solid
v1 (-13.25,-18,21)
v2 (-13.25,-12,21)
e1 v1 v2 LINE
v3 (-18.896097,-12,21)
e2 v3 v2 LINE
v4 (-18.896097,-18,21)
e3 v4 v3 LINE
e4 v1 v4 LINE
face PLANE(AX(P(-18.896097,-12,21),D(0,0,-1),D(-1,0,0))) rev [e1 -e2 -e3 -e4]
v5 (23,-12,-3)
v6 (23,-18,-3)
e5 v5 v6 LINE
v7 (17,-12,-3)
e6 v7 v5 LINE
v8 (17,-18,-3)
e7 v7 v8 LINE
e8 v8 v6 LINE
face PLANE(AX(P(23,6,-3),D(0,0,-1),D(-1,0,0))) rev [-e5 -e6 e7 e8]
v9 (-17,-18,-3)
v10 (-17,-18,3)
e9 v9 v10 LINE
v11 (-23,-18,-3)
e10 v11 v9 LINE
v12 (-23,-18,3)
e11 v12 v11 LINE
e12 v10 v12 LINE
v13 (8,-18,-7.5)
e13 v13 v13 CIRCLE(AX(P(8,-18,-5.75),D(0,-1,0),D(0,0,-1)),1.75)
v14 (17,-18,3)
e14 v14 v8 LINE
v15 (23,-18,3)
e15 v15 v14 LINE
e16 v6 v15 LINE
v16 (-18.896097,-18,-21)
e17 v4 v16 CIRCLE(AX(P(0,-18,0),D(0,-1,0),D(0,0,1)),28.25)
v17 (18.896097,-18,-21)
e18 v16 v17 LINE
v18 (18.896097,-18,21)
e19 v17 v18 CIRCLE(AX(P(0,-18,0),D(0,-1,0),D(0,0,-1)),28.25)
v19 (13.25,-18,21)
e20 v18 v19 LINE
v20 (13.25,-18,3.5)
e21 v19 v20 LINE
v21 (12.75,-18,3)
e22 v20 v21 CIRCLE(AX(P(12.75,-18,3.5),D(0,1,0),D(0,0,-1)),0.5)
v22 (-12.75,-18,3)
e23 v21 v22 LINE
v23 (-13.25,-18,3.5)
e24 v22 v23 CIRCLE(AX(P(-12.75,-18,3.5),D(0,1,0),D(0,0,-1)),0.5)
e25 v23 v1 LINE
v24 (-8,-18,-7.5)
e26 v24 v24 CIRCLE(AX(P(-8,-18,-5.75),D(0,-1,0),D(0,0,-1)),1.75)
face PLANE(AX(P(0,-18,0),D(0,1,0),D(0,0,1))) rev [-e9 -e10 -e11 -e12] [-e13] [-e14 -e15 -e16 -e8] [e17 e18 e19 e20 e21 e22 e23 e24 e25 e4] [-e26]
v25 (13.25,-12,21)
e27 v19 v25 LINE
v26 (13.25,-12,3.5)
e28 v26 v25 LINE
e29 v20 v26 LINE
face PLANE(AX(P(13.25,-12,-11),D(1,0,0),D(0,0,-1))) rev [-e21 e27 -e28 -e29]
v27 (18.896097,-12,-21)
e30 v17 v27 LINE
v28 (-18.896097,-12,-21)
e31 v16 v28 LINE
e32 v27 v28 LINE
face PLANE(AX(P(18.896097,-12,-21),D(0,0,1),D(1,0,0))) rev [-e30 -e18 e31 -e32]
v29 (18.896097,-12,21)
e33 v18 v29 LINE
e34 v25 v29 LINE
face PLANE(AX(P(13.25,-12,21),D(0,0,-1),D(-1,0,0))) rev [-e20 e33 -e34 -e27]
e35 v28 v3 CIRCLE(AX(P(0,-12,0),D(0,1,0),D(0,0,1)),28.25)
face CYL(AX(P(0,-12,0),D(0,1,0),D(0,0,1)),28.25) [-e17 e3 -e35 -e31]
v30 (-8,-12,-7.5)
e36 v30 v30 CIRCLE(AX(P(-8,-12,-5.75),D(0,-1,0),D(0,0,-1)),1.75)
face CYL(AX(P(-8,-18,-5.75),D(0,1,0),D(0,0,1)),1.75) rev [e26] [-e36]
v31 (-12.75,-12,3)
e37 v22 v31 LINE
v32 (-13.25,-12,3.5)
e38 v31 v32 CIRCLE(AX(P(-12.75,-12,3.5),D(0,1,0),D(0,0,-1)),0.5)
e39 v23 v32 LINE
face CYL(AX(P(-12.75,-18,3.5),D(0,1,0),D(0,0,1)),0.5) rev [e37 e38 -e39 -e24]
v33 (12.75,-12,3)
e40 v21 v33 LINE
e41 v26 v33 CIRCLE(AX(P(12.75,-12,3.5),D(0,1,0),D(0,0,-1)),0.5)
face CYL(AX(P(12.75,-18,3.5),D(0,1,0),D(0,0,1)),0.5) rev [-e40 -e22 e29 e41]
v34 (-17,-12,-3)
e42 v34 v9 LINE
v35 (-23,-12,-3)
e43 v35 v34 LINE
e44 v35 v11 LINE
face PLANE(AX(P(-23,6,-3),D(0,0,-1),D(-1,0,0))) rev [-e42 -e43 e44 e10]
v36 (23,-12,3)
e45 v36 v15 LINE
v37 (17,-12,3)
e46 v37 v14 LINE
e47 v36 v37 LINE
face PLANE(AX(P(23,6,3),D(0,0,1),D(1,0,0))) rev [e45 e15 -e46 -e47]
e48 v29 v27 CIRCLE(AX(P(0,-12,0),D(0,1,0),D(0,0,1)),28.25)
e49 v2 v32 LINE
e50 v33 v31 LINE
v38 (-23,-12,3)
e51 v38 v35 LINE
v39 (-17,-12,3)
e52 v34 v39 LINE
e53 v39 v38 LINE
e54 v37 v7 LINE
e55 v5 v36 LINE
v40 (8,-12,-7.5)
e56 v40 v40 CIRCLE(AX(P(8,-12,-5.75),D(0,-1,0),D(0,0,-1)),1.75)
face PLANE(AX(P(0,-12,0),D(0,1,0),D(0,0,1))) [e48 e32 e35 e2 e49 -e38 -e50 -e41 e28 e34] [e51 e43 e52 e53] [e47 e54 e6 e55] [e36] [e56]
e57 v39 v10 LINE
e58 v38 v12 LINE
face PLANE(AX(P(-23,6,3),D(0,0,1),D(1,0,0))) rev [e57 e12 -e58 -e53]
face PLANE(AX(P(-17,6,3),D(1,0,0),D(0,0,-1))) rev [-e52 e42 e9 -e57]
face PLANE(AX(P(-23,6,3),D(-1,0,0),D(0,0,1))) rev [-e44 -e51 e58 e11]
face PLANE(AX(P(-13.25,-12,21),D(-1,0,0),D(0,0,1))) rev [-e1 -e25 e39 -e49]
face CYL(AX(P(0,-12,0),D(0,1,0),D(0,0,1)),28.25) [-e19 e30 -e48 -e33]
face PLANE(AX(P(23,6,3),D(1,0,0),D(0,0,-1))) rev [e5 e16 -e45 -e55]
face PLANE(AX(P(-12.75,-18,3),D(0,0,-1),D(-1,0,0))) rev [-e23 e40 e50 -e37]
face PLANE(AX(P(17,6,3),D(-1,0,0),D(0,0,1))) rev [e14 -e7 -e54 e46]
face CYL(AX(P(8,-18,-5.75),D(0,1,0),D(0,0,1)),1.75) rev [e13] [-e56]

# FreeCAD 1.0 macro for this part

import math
import FreeCAD as App
import Part
import Sketcher


def add_polygon(sketch, points):
    """Adds a closed chain of lines whose ends are joined by coincident constraints."""
    first, n = sketch.GeometryCount, len(points)
    for a, b in zip(points, points[1:] + points[:1]):
        sketch.addGeometry(Part.LineSegment(App.Vector(*a, 0), App.Vector(*b, 0)), False)
    for i in range(n):
        sketch.addConstraint(Sketcher.Constraint("Coincident", first + i, 2, first + (i + 1) % n, 1))

doc = App.newDocument("Part")
body = doc.addObject("PartDesign::Body", "Body")

# Sketch on XZ plane
sketch1 = body.newObject("Sketcher::SketchObject", "Sketch")
sketch1.AttachmentSupport = (doc.getObject("XZ_Plane"), [""])
sketch1.MapMode = "FlatFace"
sketch1.addGeometry(Part.LineSegment(App.Vector(-161, -104, 0), App.Vector(-39, -10, 0)), False)
sketch1.addGeometry(Part.ArcOfCircle(Part.Circle(App.Vector(0, 0, 0), App.Vector(0, 0, 1), 40), math.radians(166), math.radians(194)), False)
sketch1.addGeometry(Part.LineSegment(App.Vector(-39, 10, 0), App.Vector(-161, 104, 0)), False)
sketch1.addGeometry(Part.LineSegment(App.Vector(-161, 104, 0), App.Vector(-161, 124, 0)), False)
sketch1.addGeometry(Part.LineSegment(App.Vector(-161, 124, 0), App.Vector(-141, 124, 0)), False)
sketch1.addGeometry(Part.LineSegment(App.Vector(-141, 124, 0), App.Vector(-23, 33, 0)), False)
sketch1.addGeometry(Part.ArcOfCircle(Part.Circle(App.Vector(0, 0, 0), App.Vector(0, 0, 1), 40), math.radians(55), math.radians(125)), False)
sketch1.addGeometry(Part.LineSegment(App.Vector(23, 33, 0), App.Vector(141, 124, 0)), False)
sketch1.addGeometry(Part.LineSegment(App.Vector(141, 124, 0), App.Vector(161, 124, 0)), False)
sketch1.addGeometry(Part.LineSegment(App.Vector(161, 124, 0), App.Vector(161, 104, 0)), False)
sketch1.addGeometry(Part.LineSegment(App.Vector(161, 104, 0), App.Vector(39, 10, 0)), False)
sketch1.addGeometry(Part.ArcOfCircle(Part.Circle(App.Vector(0, 0, 0), App.Vector(0, 0, 1), 40), math.radians(-14), math.radians(14)), False)
sketch1.addGeometry(Part.LineSegment(App.Vector(39, -10, 0), App.Vector(161, -104, 0)), False)
sketch1.addGeometry(Part.LineSegment(App.Vector(161, -104, 0), App.Vector(161, -124, 0)), False)
sketch1.addGeometry(Part.LineSegment(App.Vector(161, -124, 0), App.Vector(141, -124, 0)), False)
sketch1.addGeometry(Part.LineSegment(App.Vector(141, -124, 0), App.Vector(23, -33, 0)), False)
sketch1.addGeometry(Part.ArcOfCircle(Part.Circle(App.Vector(0, 0, 0), App.Vector(0, 0, 1), 40), math.radians(-125), math.radians(-55)), False)
sketch1.addGeometry(Part.LineSegment(App.Vector(-23, -33, 0), App.Vector(-141, -124, 0)), False)
sketch1.addGeometry(Part.LineSegment(App.Vector(-141, -124, 0), App.Vector(-161, -124, 0)), False)
sketch1.addGeometry(Part.LineSegment(App.Vector(-161, -124, 0), App.Vector(-161, -104, 0)), False)
sketch1.addConstraint(Sketcher.Constraint("Coincident", 0, 2, 1, 2))
sketch1.addConstraint(Sketcher.Constraint("Coincident", 1, 1, 2, 1))
sketch1.addConstraint(Sketcher.Constraint("Coincident", 2, 2, 3, 1))
sketch1.addConstraint(Sketcher.Constraint("Coincident", 3, 2, 4, 1))
sketch1.addConstraint(Sketcher.Constraint("Coincident", 4, 2, 5, 1))
sketch1.addConstraint(Sketcher.Constraint("Coincident", 5, 2, 6, 2))
sketch1.addConstraint(Sketcher.Constraint("Coincident", 6, 1, 7, 1))
sketch1.addConstraint(Sketcher.Constraint("Coincident", 7, 2, 8, 1))
sketch1.addConstraint(Sketcher.Constraint("Coincident", 8, 2, 9, 1))
sketch1.addConstraint(Sketcher.Constraint("Coincident", 9, 2, 10, 1))
sketch1.addConstraint(Sketcher.Constraint("Coincident", 10, 2, 11, 2))
sketch1.addConstraint(Sketcher.Constraint("Coincident", 11, 1, 12, 1))
sketch1.addConstraint(Sketcher.Constraint("Coincident", 12, 2, 13, 1))
sketch1.addConstraint(Sketcher.Constraint("Coincident", 13, 2, 14, 1))
sketch1.addConstraint(Sketcher.Constraint("Coincident", 14, 2, 15, 1))
sketch1.addConstraint(Sketcher.Constraint("Coincident", 15, 2, 16, 2))
sketch1.addConstraint(Sketcher.Constraint("Coincident", 16, 1, 17, 1))
sketch1.addConstraint(Sketcher.Constraint("Coincident", 17, 2, 18, 1))
sketch1.addConstraint(Sketcher.Constraint("Coincident", 18, 2, 19, 1))
sketch1.addConstraint(Sketcher.Constraint("Coincident", 19, 2, 0, 1))
sketch1.addConstraint(Sketcher.Constraint("Vertical", 3))
sketch1.addConstraint(Sketcher.Constraint("Horizontal", 4))
sketch1.addConstraint(Sketcher.Constraint("Horizontal", 8))
sketch1.addConstraint(Sketcher.Constraint("Vertical", 9))
sketch1.addConstraint(Sketcher.Constraint("Vertical", 13))
sketch1.addConstraint(Sketcher.Constraint("Horizontal", 14))
sketch1.addConstraint(Sketcher.Constraint("Horizontal", 18))
sketch1.addConstraint(Sketcher.Constraint("Vertical", 19))
sketch1.addConstraint(Sketcher.Constraint("Coincident", 1, 3, -1, 1))
sketch1.addConstraint(Sketcher.Constraint("Coincident", 6, 3, -1, 1))
sketch1.addConstraint(Sketcher.Constraint("Coincident", 11, 3, -1, 1))
sketch1.addConstraint(Sketcher.Constraint("Coincident", 16, 3, -1, 1))
sketch1.addConstraint(Sketcher.Constraint("Equal", 1, 6))
sketch1.addConstraint(Sketcher.Constraint("Equal", 6, 11))
sketch1.addConstraint(Sketcher.Constraint("Equal", 11, 16))
sketch1.addConstraint(Sketcher.Constraint("Symmetric", 2, 2, 12, 2, -1, 1))
sketch1.addConstraint(Sketcher.Constraint("Symmetric", 4, 2, 14, 2, -1, 1))
sketch1.addConstraint(Sketcher.Constraint("Symmetric", 7, 2, 17, 2, -1, 1))
sketch1.addConstraint(Sketcher.Constraint("Symmetric", 9, 2, 19, 2, -1, 1))
sketch1.addConstraint(Sketcher.Constraint("Symmetric", 4, 2, 7, 2, -2))
sketch1.addConstraint(Sketcher.Constraint("Symmetric", 2, 2, 9, 2, -2))
sketch1.addConstraint(Sketcher.Constraint("Parallel", 2, 5))
sketch1.addConstraint(Sketcher.Constraint("Parallel", 0, 7))
sketch1.addConstraint(Sketcher.Constraint("Parallel", 7, 10))
sketch1.addConstraint(Sketcher.Constraint("Parallel", 5, 12))
sketch1.addConstraint(Sketcher.Constraint("Parallel", 12, 15))
sketch1.addConstraint(Sketcher.Constraint("Parallel", 10, 17))
sketch1.addConstraint(Sketcher.Constraint("Horizontal", 5, 2, 6, 1))
sketch1.addConstraint(Sketcher.Constraint("Equal", 18, 3))
sketch1.addConstraint(Sketcher.Constraint("Radius", 1, 40.0))
sketch1.addConstraint(Sketcher.Constraint("DistanceX", 4, 1, 4, 2, 20.0))
sketch1.addConstraint(Sketcher.Constraint("DistanceX", 2, 2, -1, 1, 161.0))
sketch1.addConstraint(Sketcher.Constraint("DistanceY", -1, 1, 2, 2, 103.5))
sketch1.addConstraint(Sketcher.Constraint("Distance", 5, 148.940169))
pad1 = body.newObject("PartDesign::Pad", "Pad")
pad1.Profile = sketch1
pad1.Length = 6
pad1.Reversed = True

# Sketch on XZ plane
sketch2 = body.newObject("Sketcher::SketchObject", "Sketch001")
sketch2.AttachmentSupport = (doc.getObject("XZ_Plane"), [""])
sketch2.MapMode = "FlatFace"
sketch2.addGeometry(Part.Circle(App.Vector(0, 0, 0), App.Vector(0, 0, 1), 40), False)
sketch2.addConstraint(Sketcher.Constraint("Coincident", 0, 3, -1, 1))
sketch2.addConstraint(Sketcher.Constraint("Diameter", 0, 80.0))
pad2 = body.newObject("PartDesign::Pad", "Pad001")
pad2.Profile = sketch2
pad2.Length = 6

# Sketch on XZ plane
sketch3 = body.newObject("Sketcher::SketchObject", "Sketch002")
sketch3.AttachmentSupport = (doc.getObject("XZ_Plane"), [""])
sketch3.MapMode = "FlatFace"
sketch3.AttachmentOffset = App.Placement(App.Vector(0, 0, 6), App.Rotation())
sketch3.addGeometry(Part.LineSegment(App.Vector(-19, -21, 0), App.Vector(19, -21, 0)), False)
sketch3.addGeometry(Part.ArcOfCircle(Part.Circle(App.Vector(0, 0, 0), App.Vector(0, 0, 1), 28), math.radians(-48), math.radians(48)), False)
sketch3.addGeometry(Part.LineSegment(App.Vector(19, 21, 0), App.Vector(13, 21, 0)), False)
sketch3.addGeometry(Part.LineSegment(App.Vector(13, 21, 0), App.Vector(13, -11, 0)), False)
sketch3.addGeometry(Part.LineSegment(App.Vector(13, -11, 0), App.Vector(-13, -11, 0)), False)
sketch3.addGeometry(Part.LineSegment(App.Vector(-13, -11, 0), App.Vector(-13, 21, 0)), False)
sketch3.addGeometry(Part.LineSegment(App.Vector(-13, 21, 0), App.Vector(-19, 21, 0)), False)
sketch3.addGeometry(Part.ArcOfCircle(Part.Circle(App.Vector(0, 0, 0), App.Vector(0, 0, 1), 28), math.radians(132), math.radians(228)), False)
sketch3.addConstraint(Sketcher.Constraint("Coincident", 0, 2, 1, 1))
sketch3.addConstraint(Sketcher.Constraint("Coincident", 1, 2, 2, 1))
sketch3.addConstraint(Sketcher.Constraint("Coincident", 2, 2, 3, 1))
sketch3.addConstraint(Sketcher.Constraint("Coincident", 3, 2, 4, 1))
sketch3.addConstraint(Sketcher.Constraint("Coincident", 4, 2, 5, 1))
sketch3.addConstraint(Sketcher.Constraint("Coincident", 5, 2, 6, 1))
sketch3.addConstraint(Sketcher.Constraint("Coincident", 6, 2, 7, 1))
sketch3.addConstraint(Sketcher.Constraint("Coincident", 7, 2, 0, 1))
sketch3.addConstraint(Sketcher.Constraint("Horizontal", 0))
sketch3.addConstraint(Sketcher.Constraint("Horizontal", 2))
sketch3.addConstraint(Sketcher.Constraint("Vertical", 3))
sketch3.addConstraint(Sketcher.Constraint("Horizontal", 4))
sketch3.addConstraint(Sketcher.Constraint("Vertical", 5))
sketch3.addConstraint(Sketcher.Constraint("Horizontal", 6))
sketch3.addConstraint(Sketcher.Constraint("Coincident", 1, 3, -1, 1))
sketch3.addConstraint(Sketcher.Constraint("Coincident", 7, 3, -1, 1))
sketch3.addConstraint(Sketcher.Constraint("Equal", 1, 7))
sketch3.addConstraint(Sketcher.Constraint("Symmetric", 2, 2, 5, 2, -2))
sketch3.addConstraint(Sketcher.Constraint("Vertical", 0, 2, 1, 2))
sketch3.addConstraint(Sketcher.Constraint("DistanceY", 3, 2, 3, 1, 32.0))
sketch3.addConstraint(Sketcher.Constraint("Radius", 1, 28.25))
sketch3.addConstraint(Sketcher.Constraint("DistanceX", 4, 2, 4, 1, 26.5))
sketch3.addConstraint(Sketcher.Constraint("DistanceY", 0, 2, -1, 1, 21.0))
pad3 = body.newObject("PartDesign::Pad", "Pad002")
pad3.Profile = sketch3
pad3.Length = 6

# Sketch on XZ plane
sketch4 = body.newObject("Sketcher::SketchObject", "Sketch003")
sketch4.AttachmentSupport = (doc.getObject("XZ_Plane"), [""])
sketch4.MapMode = "FlatFace"
sketch4.AttachmentOffset = App.Placement(App.Vector(0, 0, 12), App.Rotation())
sketch4.addGeometry(Part.LineSegment(App.Vector(-13.25, 21, 0), App.Vector(-18.9, 21, 0)), False)
sketch4.addGeometry(Part.ArcOfCircle(Part.Circle(App.Vector(0, 0, 0), App.Vector(0, 0, 1), 28.25), math.radians(132), math.radians(228)), False)
sketch4.addGeometry(Part.LineSegment(App.Vector(-18.9, -21, 0), App.Vector(18.9, -21, 0)), False)
sketch4.addGeometry(Part.ArcOfCircle(Part.Circle(App.Vector(0, 0, 0), App.Vector(0, 0, 1), 28.25), math.radians(-48), math.radians(48)), False)
sketch4.addGeometry(Part.LineSegment(App.Vector(18.9, 21, 0), App.Vector(13.25, 21, 0)), False)
sketch4.addGeometry(Part.LineSegment(App.Vector(13.25, 21, 0), App.Vector(13.25, 3.5, 0)), False)
sketch4.addGeometry(Part.ArcOfCircle(Part.Circle(App.Vector(12.75, 3.5, 0), App.Vector(0, 0, 1), 0.5), math.radians(-90), math.radians(0)), False)
sketch4.addGeometry(Part.LineSegment(App.Vector(12.75, 3, 0), App.Vector(-12.75, 3, 0)), False)
sketch4.addGeometry(Part.ArcOfCircle(Part.Circle(App.Vector(-12.75, 3.5, 0), App.Vector(0, 0, 1), 0.5), math.radians(180), math.radians(270)), False)
sketch4.addGeometry(Part.LineSegment(App.Vector(-13.25, 3.5, 0), App.Vector(-13.25, 21, 0)), False)
sketch4.addGeometry(Part.Circle(App.Vector(8, -5.75, 0), App.Vector(0, 0, 1), 1.75), False)
sketch4.addGeometry(Part.Circle(App.Vector(-8, -5.75, 0), App.Vector(0, 0, 1), 1.75), False)
sketch4.addConstraint(Sketcher.Constraint("Coincident", 0, 2, 1, 1))
sketch4.addConstraint(Sketcher.Constraint("Coincident", 1, 2, 2, 1))
sketch4.addConstraint(Sketcher.Constraint("Coincident", 2, 2, 3, 1))
sketch4.addConstraint(Sketcher.Constraint("Coincident", 3, 2, 4, 1))
sketch4.addConstraint(Sketcher.Constraint("Coincident", 4, 2, 5, 1))
sketch4.addConstraint(Sketcher.Constraint("Tangent", 5, 2, 6, 2))
sketch4.addConstraint(Sketcher.Constraint("Tangent", 6, 1, 7, 1))
sketch4.addConstraint(Sketcher.Constraint("Tangent", 7, 2, 8, 2))
sketch4.addConstraint(Sketcher.Constraint("Tangent", 8, 1, 9, 1))
sketch4.addConstraint(Sketcher.Constraint("Coincident", 9, 2, 0, 1))
sketch4.addConstraint(Sketcher.Constraint("Horizontal", 0))
sketch4.addConstraint(Sketcher.Constraint("Horizontal", 2))
sketch4.addConstraint(Sketcher.Constraint("Horizontal", 4))
sketch4.addConstraint(Sketcher.Constraint("Vertical", 5))
sketch4.addConstraint(Sketcher.Constraint("Horizontal", 7))
sketch4.addConstraint(Sketcher.Constraint("Vertical", 9))
sketch4.addConstraint(Sketcher.Constraint("Coincident", 1, 3, -1, 1))
sketch4.addConstraint(Sketcher.Constraint("Coincident", 3, 3, -1, 1))
sketch4.addConstraint(Sketcher.Constraint("Equal", 1, 3))
sketch4.addConstraint(Sketcher.Constraint("Equal", 6, 8))
sketch4.addConstraint(Sketcher.Constraint("Equal", 10, 11))
sketch4.addConstraint(Sketcher.Constraint("Symmetric", 10, 3, 11, 3, -2))
sketch4.addConstraint(Sketcher.Constraint("Symmetric", 4, 2, 9, 2, -2))
sketch4.addConstraint(Sketcher.Constraint("Vertical", 0, 2, 1, 2))
sketch4.addConstraint(Sketcher.Constraint("Diameter", 10, 3.5))
sketch4.addConstraint(Sketcher.Constraint("Radius", 6, 0.5))
sketch4.addConstraint(Sketcher.Constraint("Radius", 1, 28.25))
sketch4.addConstraint(Sketcher.Constraint("DistanceX", 7, 2, 7, 1, 25.5))
sketch4.addConstraint(Sketcher.Constraint("DistanceY", 5, 2, 5, 1, 17.5))
sketch4.addConstraint(Sketcher.Constraint("DistanceX", -1, 1, 10, 3, 8.0))
sketch4.addConstraint(Sketcher.Constraint("DistanceY", -1, 1, 0, 2, 21.0))
sketch4.addConstraint(Sketcher.Constraint("DistanceY", 10, 3, -1, 1, 5.75))
pad4 = body.newObject("PartDesign::Pad", "Pad003")
pad4.Profile = sketch4
pad4.Length = 6

# Sketch on XZ plane
sketch5 = body.newObject("Sketcher::SketchObject", "Sketch004")
sketch5.AttachmentSupport = (doc.getObject("XZ_Plane"), [""])
sketch5.MapMode = "FlatFace"
sketch5.AttachmentOffset = App.Placement(App.Vector(0, 0, 18), App.Rotation())
add_polygon(sketch5, [(-23, 3), (-23, -3), (-17, -3), (-17, 3)])  # lines 0-3
add_polygon(sketch5, [(17, 3), (17, -3), (23, -3), (23, 3)])  # lines 4-7
sketch5.addConstraint(Sketcher.Constraint("Vertical", 0))
sketch5.addConstraint(Sketcher.Constraint("Horizontal", 1))
sketch5.addConstraint(Sketcher.Constraint("Vertical", 2))
sketch5.addConstraint(Sketcher.Constraint("Horizontal", 3))
sketch5.addConstraint(Sketcher.Constraint("Vertical", 4))
sketch5.addConstraint(Sketcher.Constraint("Horizontal", 5))
sketch5.addConstraint(Sketcher.Constraint("Vertical", 6))
sketch5.addConstraint(Sketcher.Constraint("Horizontal", 7))
sketch5.addConstraint(Sketcher.Constraint("Symmetric", 2, 2, 4, 2, -1, 1))
sketch5.addConstraint(Sketcher.Constraint("Symmetric", 0, 2, 6, 2, -1, 1))
sketch5.addConstraint(Sketcher.Constraint("Horizontal", 1, 2, 4, 2))
sketch5.addConstraint(Sketcher.Constraint("Equal", 7, 0))
sketch5.addConstraint(Sketcher.Constraint("DistanceX", 1, 1, 1, 2, 6.0))
sketch5.addConstraint(Sketcher.Constraint("DistanceX", 0, 2, -1, 1, 23.0))
pocket1 = body.newObject("PartDesign::Pocket", "Pocket")
pocket1.Profile = sketch5
pocket1.Type = "ThroughAll"

# Sketch on XZ plane
sketch6 = body.newObject("Sketcher::SketchObject", "Sketch005")
sketch6.AttachmentSupport = (doc.getObject("XZ_Plane"), [""])
sketch6.MapMode = "FlatFace"
sketch6.AttachmentOffset = App.Placement(App.Vector(0, 0, -6), App.Rotation())
add_polygon(sketch6, [(-161, -124), (-161, 124), (161, 124), (161, -124)])  # lines 0-3
sketch6.addConstraint(Sketcher.Constraint("Vertical", 0))
sketch6.addConstraint(Sketcher.Constraint("Horizontal", 1))
sketch6.addConstraint(Sketcher.Constraint("Vertical", 2))
sketch6.addConstraint(Sketcher.Constraint("Horizontal", 3))
sketch6.addConstraint(Sketcher.Constraint("Symmetric", 0, 2, 2, 2, -1, 1))
sketch6.addConstraint(Sketcher.Constraint("DistanceX", 1, 1, 1, 2, 322.0))
sketch6.addConstraint(Sketcher.Constraint("DistanceY", 0, 1, 0, 2, 247.0))
pocket2 = body.newObject("PartDesign::Pocket", "Pocket001")
pocket2.Profile = sketch6
pocket2.Length = 12
pocket2.Reversed = True

# Sketch on XZ plane
sketch7 = body.newObject("Sketcher::SketchObject", "Sketch006")
sketch7.AttachmentSupport = (doc.getObject("XZ_Plane"), [""])
sketch7.MapMode = "FlatFace"
sketch7.AttachmentOffset = App.Placement(App.Vector(0, 0, 6), App.Rotation())
sketch7.addGeometry(Part.Circle(App.Vector(0, 0, 0), App.Vector(0, 0, 1), 28), False)
sketch7.addConstraint(Sketcher.Constraint("Coincident", 0, 3, -1, 1))
sketch7.addConstraint(Sketcher.Constraint("Diameter", 0, 56.5))
pocket3 = body.newObject("PartDesign::Pocket", "Pocket002")
pocket3.Profile = sketch7
pocket3.Length = 6
pocket3.Reversed = True

doc.recompute()
